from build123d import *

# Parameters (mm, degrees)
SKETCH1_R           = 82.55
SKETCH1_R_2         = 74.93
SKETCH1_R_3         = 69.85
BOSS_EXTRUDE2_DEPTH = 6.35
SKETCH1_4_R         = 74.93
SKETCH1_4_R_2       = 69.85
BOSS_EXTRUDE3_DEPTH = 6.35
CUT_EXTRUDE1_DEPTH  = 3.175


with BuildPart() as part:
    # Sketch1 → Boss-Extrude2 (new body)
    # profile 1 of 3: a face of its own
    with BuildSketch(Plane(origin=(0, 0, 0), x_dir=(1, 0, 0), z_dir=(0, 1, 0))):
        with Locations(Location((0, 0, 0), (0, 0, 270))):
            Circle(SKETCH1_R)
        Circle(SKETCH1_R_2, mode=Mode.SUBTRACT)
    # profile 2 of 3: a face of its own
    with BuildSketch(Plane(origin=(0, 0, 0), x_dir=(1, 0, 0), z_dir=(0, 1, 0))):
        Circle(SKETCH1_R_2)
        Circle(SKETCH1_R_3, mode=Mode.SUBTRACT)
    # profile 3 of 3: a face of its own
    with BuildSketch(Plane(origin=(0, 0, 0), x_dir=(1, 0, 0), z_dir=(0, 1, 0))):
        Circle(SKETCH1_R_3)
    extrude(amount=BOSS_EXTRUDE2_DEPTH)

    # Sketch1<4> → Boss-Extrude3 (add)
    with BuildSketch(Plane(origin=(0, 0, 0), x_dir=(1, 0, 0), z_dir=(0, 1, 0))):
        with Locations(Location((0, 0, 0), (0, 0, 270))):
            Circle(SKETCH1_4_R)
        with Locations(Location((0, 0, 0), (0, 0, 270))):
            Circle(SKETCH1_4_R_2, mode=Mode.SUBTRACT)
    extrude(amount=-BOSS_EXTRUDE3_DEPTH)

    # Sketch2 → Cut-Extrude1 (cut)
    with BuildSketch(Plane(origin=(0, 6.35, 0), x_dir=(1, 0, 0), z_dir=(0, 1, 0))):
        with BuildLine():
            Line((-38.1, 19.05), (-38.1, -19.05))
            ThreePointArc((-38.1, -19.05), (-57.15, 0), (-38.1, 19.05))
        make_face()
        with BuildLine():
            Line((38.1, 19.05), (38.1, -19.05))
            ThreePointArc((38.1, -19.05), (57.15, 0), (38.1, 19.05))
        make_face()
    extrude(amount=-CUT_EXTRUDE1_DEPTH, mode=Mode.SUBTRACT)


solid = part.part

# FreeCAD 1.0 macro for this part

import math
import FreeCAD as App
import Part
import Sketcher
from FreeCAD import Vector
Q = App.Units.Quantity

doc = App.newDocument("Part")
params = doc.addObject("Spreadsheet::Sheet", "Params")
for row, (alias, value) in enumerate([
    ("sketch1_diameter", "6.5 in"),
    ("pad1_length", "0.25 in"),
    ("sketch2_diameter", "5.9 in"),
    ("sketch2_diameter2", "5.5 in"),
    ("pad2_length", "0.25 in"),
    ("sketch3_radius", "0.75 in"),
    ("pocket1_length", "0.125 in"),
], start=1):
    params.set(f"A{row}", alias)
    params.set(f"B{row}", "=" + value)
    params.setAlias(f"B{row}", alias)

body = doc.addObject("PartDesign::Body", "Body")

# Sketch on XZ plane
sketch1 = doc.addObject("Sketcher::SketchObject", "Sketch")
body.addObject(sketch1)
sketch1.AttachmentSupport = (doc.XZ_Plane, [""])
sketch1.MapMode = "FlatFace"
sketch1.addGeometry(Part.Circle(Vector(0, 0, 0), Vector(0, 0, 1), 83), False)
sketch1.addConstraint([
    Sketcher.Constraint("Coincident", 0, 3, -1, 1),
    Sketcher.Constraint("Diameter", 0, Q("6.5 in")),
])
sketch1.setExpression("Constraints[1]", "Params.sketch1_diameter")
pad1 = doc.addObject("PartDesign::Pad", "Pad")
body.addObject(pad1)
pad1.Profile = sketch1
pad1.setExpression("Length", "Params.pad1_length")
pad1.Reversed = True

# Sketch on XZ plane
sketch2 = doc.addObject("Sketcher::SketchObject", "Sketch001")
body.addObject(sketch2)
sketch2.AttachmentSupport = (doc.XZ_Plane, [""])
sketch2.MapMode = "FlatFace"
sketch2.addGeometry([
    Part.Circle(Vector(0, 0, 0), Vector(0, 0, 1), 75),
    Part.Circle(Vector(0, 0, 0), Vector(0, 0, 1), 70),
], False)
sketch2.addConstraint([
    Sketcher.Constraint("Coincident", 0, 3, -1, 1),
    Sketcher.Constraint("Coincident", 1, 3, -1, 1),
    Sketcher.Constraint("Diameter", 0, Q("5.9 in")),
    Sketcher.Constraint("Diameter", 1, Q("5.5 in")),
])
sketch2.setExpression("Constraints[2]", "Params.sketch2_diameter")
sketch2.setExpression("Constraints[3]", "Params.sketch2_diameter2")
pad2 = doc.addObject("PartDesign::Pad", "Pad001")
body.addObject(pad2)
pad2.Profile = sketch2
pad2.setExpression("Length", "Params.pad2_length")

# Sketch on XZ plane
sketch3 = doc.addObject("Sketcher::SketchObject", "Sketch002")
body.addObject(sketch3)
sketch3.AttachmentSupport = (doc.XZ_Plane, [""])
sketch3.MapMode = "FlatFace"
sketch3.AttachmentOffset = App.Placement(Vector(0, 0, -0.25 * 25.4), App.Rotation())
sketch3.addGeometry([
    Part.LineSegment(Vector(-38, 19, 0), Vector(-38, -19, 0)),
    Part.ArcOfCircle(Part.Circle(Vector(-38, 0, 0), Vector(0, 0, 1), 19), math.radians(90), math.radians(270)),
    Part.LineSegment(Vector(38, -19, 0), Vector(38, 19, 0)),
    Part.ArcOfCircle(Part.Circle(Vector(38, 0, 0), Vector(0, 0, 1), 19), math.radians(-90), math.radians(90)),
], False)
sketch3.addConstraint([
    Sketcher.Constraint("Coincident", 0, 1, 1, 1),
    Sketcher.Constraint("Coincident", 1, 2, 0, 2),
    Sketcher.Constraint("Coincident", 2, 1, 3, 1),
    Sketcher.Constraint("Coincident", 3, 2, 2, 2),
    Sketcher.Constraint("Vertical", 0),
    Sketcher.Constraint("Vertical", 2),
    Sketcher.Constraint("Equal", 1, 3),
    Sketcher.Constraint("Symmetric", 1, 3, 3, 3, -1, 1),
    Sketcher.Constraint("Symmetric", 1, 2, 2, 1, -2),
    Sketcher.Constraint("Vertical", 1, 3, 0, 1),
    Sketcher.Constraint("Radius", 1, Q("0.75 in")),
    Sketcher.Constraint("DistanceX", 1, 3, 3, 3, Q("3 in")),
])
sketch3.setExpression("Constraints[10]", "Params.sketch3_radius")
pocket1 = doc.addObject("PartDesign::Pocket", "Pocket")
body.addObject(pocket1)
pocket1.Profile = sketch3
pocket1.setExpression("Length", "Params.pocket1_length")
pocket1.Reversed = True

doc.recompute()
